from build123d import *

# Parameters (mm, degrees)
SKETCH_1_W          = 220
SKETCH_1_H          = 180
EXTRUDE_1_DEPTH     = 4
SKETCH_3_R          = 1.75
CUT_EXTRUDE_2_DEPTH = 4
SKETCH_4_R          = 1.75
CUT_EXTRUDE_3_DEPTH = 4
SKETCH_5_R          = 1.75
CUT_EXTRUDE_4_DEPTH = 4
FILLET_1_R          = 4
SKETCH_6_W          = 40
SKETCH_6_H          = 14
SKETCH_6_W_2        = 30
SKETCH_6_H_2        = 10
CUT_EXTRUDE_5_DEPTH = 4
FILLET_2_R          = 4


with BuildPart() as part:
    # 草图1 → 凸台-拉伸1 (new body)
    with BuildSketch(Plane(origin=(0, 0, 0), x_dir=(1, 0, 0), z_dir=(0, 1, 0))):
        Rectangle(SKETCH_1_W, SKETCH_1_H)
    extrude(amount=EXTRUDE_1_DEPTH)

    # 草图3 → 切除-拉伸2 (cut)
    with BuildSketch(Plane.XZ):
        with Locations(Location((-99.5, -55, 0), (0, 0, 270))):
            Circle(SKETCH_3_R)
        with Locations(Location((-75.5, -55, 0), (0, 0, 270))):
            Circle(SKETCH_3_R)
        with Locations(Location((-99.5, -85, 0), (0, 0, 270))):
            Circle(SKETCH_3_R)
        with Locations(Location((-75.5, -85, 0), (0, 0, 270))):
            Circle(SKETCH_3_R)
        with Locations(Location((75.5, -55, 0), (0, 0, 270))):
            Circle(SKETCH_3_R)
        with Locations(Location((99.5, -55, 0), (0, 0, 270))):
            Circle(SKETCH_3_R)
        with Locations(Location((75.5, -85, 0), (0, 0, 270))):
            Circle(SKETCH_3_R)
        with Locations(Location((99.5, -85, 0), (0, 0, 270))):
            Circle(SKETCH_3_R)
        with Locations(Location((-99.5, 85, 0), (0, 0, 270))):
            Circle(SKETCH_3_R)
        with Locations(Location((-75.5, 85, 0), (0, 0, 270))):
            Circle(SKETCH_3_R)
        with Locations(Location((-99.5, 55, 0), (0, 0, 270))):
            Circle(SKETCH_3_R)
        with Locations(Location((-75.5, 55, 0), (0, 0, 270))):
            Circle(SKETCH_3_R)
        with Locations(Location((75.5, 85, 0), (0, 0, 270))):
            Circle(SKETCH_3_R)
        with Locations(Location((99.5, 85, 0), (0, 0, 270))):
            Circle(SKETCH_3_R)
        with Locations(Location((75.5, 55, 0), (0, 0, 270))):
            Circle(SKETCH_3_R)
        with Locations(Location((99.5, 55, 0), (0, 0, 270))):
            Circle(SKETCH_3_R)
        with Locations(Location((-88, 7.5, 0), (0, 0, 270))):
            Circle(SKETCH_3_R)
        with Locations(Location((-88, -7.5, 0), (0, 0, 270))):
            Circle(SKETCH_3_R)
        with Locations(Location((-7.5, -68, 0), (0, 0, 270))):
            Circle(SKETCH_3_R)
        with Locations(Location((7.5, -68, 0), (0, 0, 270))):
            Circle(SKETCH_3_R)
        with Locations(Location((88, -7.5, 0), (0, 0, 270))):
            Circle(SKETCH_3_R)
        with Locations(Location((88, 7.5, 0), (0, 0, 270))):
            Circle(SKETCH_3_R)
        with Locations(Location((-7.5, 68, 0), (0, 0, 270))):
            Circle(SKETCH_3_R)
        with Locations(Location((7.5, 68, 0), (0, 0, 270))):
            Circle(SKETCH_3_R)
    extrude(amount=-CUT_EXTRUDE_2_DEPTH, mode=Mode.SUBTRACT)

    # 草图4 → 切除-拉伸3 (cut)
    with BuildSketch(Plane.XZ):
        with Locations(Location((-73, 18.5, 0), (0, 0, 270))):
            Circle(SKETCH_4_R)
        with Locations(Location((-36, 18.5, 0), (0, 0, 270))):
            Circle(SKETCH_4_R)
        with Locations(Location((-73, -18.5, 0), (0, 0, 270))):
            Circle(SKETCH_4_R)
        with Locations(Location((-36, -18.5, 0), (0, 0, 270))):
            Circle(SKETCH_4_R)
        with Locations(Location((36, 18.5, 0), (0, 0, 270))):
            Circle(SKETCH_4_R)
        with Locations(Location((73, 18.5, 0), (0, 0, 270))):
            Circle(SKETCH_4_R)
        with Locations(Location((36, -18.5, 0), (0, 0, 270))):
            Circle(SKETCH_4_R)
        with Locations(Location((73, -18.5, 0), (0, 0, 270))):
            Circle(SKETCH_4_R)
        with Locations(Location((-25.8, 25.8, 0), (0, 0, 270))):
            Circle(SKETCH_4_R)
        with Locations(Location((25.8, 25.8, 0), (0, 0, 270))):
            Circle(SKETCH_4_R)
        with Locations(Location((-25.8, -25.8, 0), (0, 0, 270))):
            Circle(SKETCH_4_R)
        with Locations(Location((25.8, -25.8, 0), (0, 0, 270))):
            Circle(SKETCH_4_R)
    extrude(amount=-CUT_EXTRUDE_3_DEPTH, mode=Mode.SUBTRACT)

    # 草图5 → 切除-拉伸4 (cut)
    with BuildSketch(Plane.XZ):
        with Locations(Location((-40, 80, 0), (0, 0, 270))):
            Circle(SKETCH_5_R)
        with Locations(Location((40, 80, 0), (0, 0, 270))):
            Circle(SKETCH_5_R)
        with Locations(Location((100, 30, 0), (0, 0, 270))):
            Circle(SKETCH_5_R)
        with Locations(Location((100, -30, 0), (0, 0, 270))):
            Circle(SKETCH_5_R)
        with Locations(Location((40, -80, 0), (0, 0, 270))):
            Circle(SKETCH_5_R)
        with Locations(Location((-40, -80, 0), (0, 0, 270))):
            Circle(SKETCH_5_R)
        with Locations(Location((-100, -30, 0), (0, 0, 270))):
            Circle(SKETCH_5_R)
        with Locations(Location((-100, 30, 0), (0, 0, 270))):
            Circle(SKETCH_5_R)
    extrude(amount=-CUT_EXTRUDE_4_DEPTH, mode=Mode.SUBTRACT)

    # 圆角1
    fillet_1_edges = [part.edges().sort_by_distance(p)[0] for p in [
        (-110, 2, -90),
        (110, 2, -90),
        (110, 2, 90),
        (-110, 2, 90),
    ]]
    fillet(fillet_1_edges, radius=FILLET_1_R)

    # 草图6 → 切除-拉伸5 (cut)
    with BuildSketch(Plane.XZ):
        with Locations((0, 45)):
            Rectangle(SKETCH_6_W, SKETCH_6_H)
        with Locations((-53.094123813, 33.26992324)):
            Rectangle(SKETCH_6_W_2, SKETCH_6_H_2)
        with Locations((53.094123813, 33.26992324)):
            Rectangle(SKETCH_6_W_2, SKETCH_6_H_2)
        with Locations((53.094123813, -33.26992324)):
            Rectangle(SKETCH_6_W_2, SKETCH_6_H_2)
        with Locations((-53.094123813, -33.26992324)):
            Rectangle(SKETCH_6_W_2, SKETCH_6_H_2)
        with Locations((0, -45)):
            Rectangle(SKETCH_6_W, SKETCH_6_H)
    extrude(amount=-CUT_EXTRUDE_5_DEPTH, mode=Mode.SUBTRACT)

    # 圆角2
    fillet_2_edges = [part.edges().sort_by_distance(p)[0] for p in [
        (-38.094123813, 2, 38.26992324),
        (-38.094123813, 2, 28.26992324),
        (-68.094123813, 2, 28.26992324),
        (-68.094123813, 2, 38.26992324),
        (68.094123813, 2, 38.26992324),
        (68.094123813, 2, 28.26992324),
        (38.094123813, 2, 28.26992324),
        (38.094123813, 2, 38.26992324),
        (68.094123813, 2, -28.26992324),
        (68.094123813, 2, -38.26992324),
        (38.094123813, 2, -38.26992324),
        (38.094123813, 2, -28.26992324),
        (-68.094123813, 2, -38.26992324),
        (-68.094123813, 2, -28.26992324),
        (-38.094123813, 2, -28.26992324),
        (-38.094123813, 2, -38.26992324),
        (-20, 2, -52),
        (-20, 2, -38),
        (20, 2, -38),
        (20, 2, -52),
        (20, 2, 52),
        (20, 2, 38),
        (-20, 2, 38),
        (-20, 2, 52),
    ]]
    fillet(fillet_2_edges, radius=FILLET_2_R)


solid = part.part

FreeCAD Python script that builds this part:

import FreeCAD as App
import Part
import Sketcher
from FreeCAD import Vector
Q = App.Units.Quantity


def edges_at(feature, points):
    """Names of the edges that pass closest to the given points."""
    edges = feature.Shape.Edges
    near = lambda p: min(range(len(edges)), key=lambda i: edges[i].distToShape(Part.Vertex(*p))[0])
    return sorted({f"Edge{near(p) + 1}" for p in points})


def add_polygon(sketch, points):
    """Adds a closed chain of lines whose ends are joined by coincident constraints."""
    first, n = sketch.GeometryCount, len(points)
    for a, b in zip(points, points[1:] + points[:1]):
        sketch.addGeometry(Part.LineSegment(App.Vector(*a, 0), App.Vector(*b, 0)), False)
    for i in range(n):
        sketch.addConstraint(Sketcher.Constraint("Coincident", first + i, 2, first + (i + 1) % n, 1))

doc = App.newDocument("Part")
body = doc.addObject("PartDesign::Body", "Body")

# Sketch on XZ plane
sketch1 = body.newObject("Sketcher::SketchObject", "Sketch")
sketch1.AttachmentSupport = (doc.getObject("XZ_Plane"), [""])
sketch1.MapMode = "FlatFace"
add_polygon(sketch1, [(-110, -90), (-110, 90), (110, 90), (110, -90)])  # lines 0-3
sketch1.addConstraint([
    Sketcher.Constraint("Vertical", 0),
    Sketcher.Constraint("Horizontal", 1),
    Sketcher.Constraint("Vertical", 2),
    Sketcher.Constraint("Horizontal", 3),
    Sketcher.Constraint("Symmetric", 0, 2, 2, 2, -1, 1),
    Sketcher.Constraint("DistanceX", 1, 1, 1, 2, Q("220 mm")),
    Sketcher.Constraint("DistanceY", 0, 1, 0, 2, Q("180 mm")),
])
pad1 = body.newObject("PartDesign::Pad", "Pad")
pad1.Profile = sketch1
pad1.Length = 4
pad1.Reversed = True

# Sketch on XZ plane
sketch2 = body.newObject("Sketcher::SketchObject", "Sketch001")
sketch2.AttachmentSupport = (doc.getObject("XZ_Plane"), [""])
sketch2.MapMode = "FlatFace"
sketch2.addGeometry([
    Part.Circle(Vector(-99.5, -55, 0), Vector(0, 0, 1), 1.8),  # 0
    Part.Circle(Vector(-75.5, -55, 0), Vector(0, 0, 1), 1.8),  # 1
    Part.Circle(Vector(-99.5, -85, 0), Vector(0, 0, 1), 1.8),  # 2
    Part.Circle(Vector(-75.5, -85, 0), Vector(0, 0, 1), 1.8),  # 3
    Part.Circle(Vector(75.5, -55, 0), Vector(0, 0, 1), 1.8),  # 4
    Part.Circle(Vector(99.5, -55, 0), Vector(0, 0, 1), 1.8),  # 5
    Part.Circle(Vector(75.5, -85, 0), Vector(0, 0, 1), 1.8),  # 6
    Part.Circle(Vector(99.5, -85, 0), Vector(0, 0, 1), 1.8),  # 7
    Part.Circle(Vector(-99.5, 85, 0), Vector(0, 0, 1), 1.8),  # 8
    Part.Circle(Vector(-75.5, 85, 0), Vector(0, 0, 1), 1.8),  # 9
    Part.Circle(Vector(-99.5, 55, 0), Vector(0, 0, 1), 1.8),  # 10
    Part.Circle(Vector(-75.5, 55, 0), Vector(0, 0, 1), 1.8),  # 11
    Part.Circle(Vector(75.5, 85, 0), Vector(0, 0, 1), 1.8),  # 12
    Part.Circle(Vector(99.5, 85, 0), Vector(0, 0, 1), 1.8),  # 13
    Part.Circle(Vector(75.5, 55, 0), Vector(0, 0, 1), 1.8),  # 14
    Part.Circle(Vector(99.5, 55, 0), Vector(0, 0, 1), 1.8),  # 15
    Part.Circle(Vector(-88, 7.5, 0), Vector(0, 0, 1), 1.8),  # 16
    Part.Circle(Vector(-88, -7.5, 0), Vector(0, 0, 1), 1.8),  # 17
    Part.Circle(Vector(-7.5, -68, 0), Vector(0, 0, 1), 1.8),  # 18
    Part.Circle(Vector(7.5, -68, 0), Vector(0, 0, 1), 1.8),  # 19
    Part.Circle(Vector(88, -7.5, 0), Vector(0, 0, 1), 1.8),  # 20
    Part.Circle(Vector(88, 7.5, 0), Vector(0, 0, 1), 1.8),  # 21
    Part.Circle(Vector(-7.5, 68, 0), Vector(0, 0, 1), 1.8),  # 22
    Part.Circle(Vector(7.5, 68, 0), Vector(0, 0, 1), 1.8),  # 23
], False)
sketch2.addConstraint([
    Sketcher.Constraint("Equal", 0, 1),
    Sketcher.Constraint("Equal", 1, 2),
    Sketcher.Constraint("Equal", 2, 3),
    Sketcher.Constraint("Equal", 3, 4),
    Sketcher.Constraint("Equal", 4, 5),
    Sketcher.Constraint("Equal", 5, 6),
    Sketcher.Constraint("Equal", 6, 7),
    Sketcher.Constraint("Equal", 7, 8),
    Sketcher.Constraint("Equal", 8, 9),
    Sketcher.Constraint("Equal", 9, 10),
    Sketcher.Constraint("Equal", 10, 11),
    Sketcher.Constraint("Equal", 11, 12),
    Sketcher.Constraint("Equal", 12, 13),
    Sketcher.Constraint("Equal", 13, 14),
    Sketcher.Constraint("Equal", 14, 15),
    Sketcher.Constraint("Equal", 15, 16),
    Sketcher.Constraint("Equal", 16, 17),
    Sketcher.Constraint("Equal", 17, 18),
    Sketcher.Constraint("Equal", 18, 19),
    Sketcher.Constraint("Equal", 19, 20),
    Sketcher.Constraint("Equal", 20, 21),
    Sketcher.Constraint("Equal", 21, 22),
    Sketcher.Constraint("Equal", 22, 23),
    Sketcher.Constraint("Symmetric", 7, 3, 8, 3, -1, 1),
    Sketcher.Constraint("Symmetric", 6, 3, 9, 3, -1, 1),
    Sketcher.Constraint("Symmetric", 5, 3, 10, 3, -1, 1),
    Sketcher.Constraint("Symmetric", 4, 3, 11, 3, -1, 1),
    Sketcher.Constraint("Symmetric", 3, 3, 12, 3, -1, 1),
    Sketcher.Constraint("Symmetric", 2, 3, 13, 3, -1, 1),
    Sketcher.Constraint("Symmetric", 1, 3, 14, 3, -1, 1),
    Sketcher.Constraint("Symmetric", 0, 3, 15, 3, -1, 1),
    Sketcher.Constraint("Symmetric", 16, 3, 20, 3, -1, 1),
    Sketcher.Constraint("Symmetric", 17, 3, 21, 3, -1, 1),
    Sketcher.Constraint("Symmetric", 19, 3, 22, 3, -1, 1),
    Sketcher.Constraint("Symmetric", 18, 3, 23, 3, -1, 1),
    Sketcher.Constraint("Symmetric", 1, 3, 4, 3, -2),
    Sketcher.Constraint("Symmetric", 0, 3, 5, 3, -2),
    Sketcher.Constraint("Symmetric", 3, 3, 6, 3, -2),
    Sketcher.Constraint("Symmetric", 2, 3, 7, 3, -2),
    Sketcher.Constraint("Symmetric", 18, 3, 19, 3, -2),
    Sketcher.Constraint("Symmetric", 17, 3, 20, 3, -2),
    Sketcher.Constraint("Horizontal", 0, 3, 1, 3),
    Sketcher.Constraint("Horizontal", 2, 3, 3, 3),
    Sketcher.Constraint("Vertical", 0, 3, 2, 3),
    Sketcher.Constraint("Vertical", 1, 3, 3, 3),
    Sketcher.Constraint("Diameter", 0, Q("3.5 mm")),
    Sketcher.Constraint("DistanceY", 0, 3, -1, 1, Q("55 mm")),
    Sketcher.Constraint("DistanceY", 2, 3, -1, 1, Q("85 mm")),
    Sketcher.Constraint("DistanceX", 16, 3, -1, 1, Q("88 mm")),
    Sketcher.Constraint("DistanceY", 18, 3, -1, 1, Q("68 mm")),
    Sketcher.Constraint("DistanceX", 0, 3, 1, 3, Q("24 mm")),
    Sketcher.Constraint("DistanceX", 1, 3, 4, 3, Q("151 mm")),
    Sketcher.Constraint("DistanceY", 17, 3, 16, 3, Q("15 mm")),
    Sketcher.Constraint("DistanceX", 1, 3, 18, 3, Q("68 mm")),
])
pocket1 = body.newObject("PartDesign::Pocket", "Pocket")
pocket1.Profile = sketch2
pocket1.Length = 4

# Sketch on XZ plane
sketch3 = body.newObject("Sketcher::SketchObject", "Sketch002")
sketch3.AttachmentSupport = (doc.getObject("XZ_Plane"), [""])
sketch3.MapMode = "FlatFace"
sketch3.addGeometry([
    Part.Circle(Vector(-73, 18.5, 0), Vector(0, 0, 1), 1.8),  # 0
    Part.Circle(Vector(-36, 18.5, 0), Vector(0, 0, 1), 1.8),  # 1
    Part.Circle(Vector(-73, -18.5, 0), Vector(0, 0, 1), 1.8),  # 2
    Part.Circle(Vector(-36, -18.5, 0), Vector(0, 0, 1), 1.8),  # 3
    Part.Circle(Vector(36, 18.5, 0), Vector(0, 0, 1), 1.8),  # 4
    Part.Circle(Vector(73, 18.5, 0), Vector(0, 0, 1), 1.8),  # 5
    Part.Circle(Vector(36, -18.5, 0), Vector(0, 0, 1), 1.8),  # 6
    Part.Circle(Vector(73, -18.5, 0), Vector(0, 0, 1), 1.8),  # 7
    Part.Circle(Vector(-25.8, 25.8, 0), Vector(0, 0, 1), 1.8),  # 8
    Part.Circle(Vector(25.8, 25.8, 0), Vector(0, 0, 1), 1.8),  # 9
    Part.Circle(Vector(-25.8, -25.8, 0), Vector(0, 0, 1), 1.8),  # 10
    Part.Circle(Vector(25.8, -25.8, 0), Vector(0, 0, 1), 1.8),  # 11
], False)
sketch3.addConstraint([
    Sketcher.Constraint("Equal", 0, 1),
    Sketcher.Constraint("Equal", 1, 2),
    Sketcher.Constraint("Equal", 2, 3),
    Sketcher.Constraint("Equal", 3, 4),
    Sketcher.Constraint("Equal", 4, 5),
    Sketcher.Constraint("Equal", 5, 6),
    Sketcher.Constraint("Equal", 6, 7),
    Sketcher.Constraint("Equal", 7, 8),
    Sketcher.Constraint("Equal", 8, 9),
    Sketcher.Constraint("Equal", 9, 10),
    Sketcher.Constraint("Equal", 10, 11),
    Sketcher.Constraint("Symmetric", 3, 3, 4, 3, -1, 1),
    Sketcher.Constraint("Symmetric", 2, 3, 5, 3, -1, 1),
    Sketcher.Constraint("Symmetric", 1, 3, 6, 3, -1, 1),
    Sketcher.Constraint("Symmetric", 0, 3, 7, 3, -1, 1),
    Sketcher.Constraint("Symmetric", 9, 3, 10, 3, -1, 1),
    Sketcher.Constraint("Symmetric", 8, 3, 11, 3, -1, 1),
    Sketcher.Constraint("Symmetric", 1, 3, 4, 3, -2),
    Sketcher.Constraint("Symmetric", 0, 3, 5, 3, -2),
    Sketcher.Constraint("Symmetric", 8, 3, 9, 3, -2),
    Sketcher.Constraint("Horizontal", 0, 3, 1, 3),
    Sketcher.Constraint("Diameter", 0, Q("3.5 mm")),
    Sketcher.Constraint("DistanceX", 0, 3, -1, 1, Q("73 mm")),
    Sketcher.Constraint("DistanceX", 1, 3, -1, 1, Q("36 mm")),
    Sketcher.Constraint("DistanceY", 2, 3, 0, 3, Q("37 mm")),
    Sketcher.Constraint("DistanceX", 8, 3, -1, 1, Q("25.8 mm")),
    Sketcher.Constraint("DistanceY", -1, 1, 8, 3, Q("25.8 mm")),
])
pocket2 = body.newObject("PartDesign::Pocket", "Pocket001")
pocket2.Profile = sketch3
pocket2.Length = 4

# Sketch on XZ plane
sketch4 = body.newObject("Sketcher::SketchObject", "Sketch003")
sketch4.AttachmentSupport = (doc.getObject("XZ_Plane"), [""])
sketch4.MapMode = "FlatFace"
sketch4.addGeometry([
    Part.Circle(Vector(-40, 80, 0), Vector(0, 0, 1), 1.8),  # 0
    Part.Circle(Vector(40, 80, 0), Vector(0, 0, 1), 1.8),  # 1
    Part.Circle(Vector(100, 30, 0), Vector(0, 0, 1), 1.8),  # 2
    Part.Circle(Vector(100, -30, 0), Vector(0, 0, 1), 1.8),  # 3
    Part.Circle(Vector(40, -80, 0), Vector(0, 0, 1), 1.8),  # 4
    Part.Circle(Vector(-40, -80, 0), Vector(0, 0, 1), 1.8),  # 5
    Part.Circle(Vector(-100, -30, 0), Vector(0, 0, 1), 1.8),  # 6
    Part.Circle(Vector(-100, 30, 0), Vector(0, 0, 1), 1.8),  # 7
], False)
sketch4.addConstraint([
    Sketcher.Constraint("Equal", 0, 1),
    Sketcher.Constraint("Equal", 1, 2),
    Sketcher.Constraint("Equal", 2, 3),
    Sketcher.Constraint("Equal", 3, 4),
    Sketcher.Constraint("Equal", 4, 5),
    Sketcher.Constraint("Equal", 5, 6),
    Sketcher.Constraint("Equal", 6, 7),
    Sketcher.Constraint("Symmetric", 0, 3, 4, 3, -1, 1),
    Sketcher.Constraint("Symmetric", 1, 3, 5, 3, -1, 1),
    Sketcher.Constraint("Symmetric", 2, 3, 6, 3, -1, 1),
    Sketcher.Constraint("Symmetric", 3, 3, 7, 3, -1, 1),
    Sketcher.Constraint("Symmetric", 0, 3, 1, 3, -2),
    Sketcher.Constraint("Symmetric", 3, 3, 6, 3, -2),
    Sketcher.Constraint("Diameter", 0, Q("3.5 mm")),
    Sketcher.Constraint("DistanceX", 0, 3, -1, 1, Q("40 mm")),
    Sketcher.Constraint("DistanceY", -1, 1, 0, 3, Q("80 mm")),
    Sketcher.Constraint("DistanceX", -1, 1, 2, 3, Q("100 mm")),
    Sketcher.Constraint("DistanceY", -1, 1, 2, 3, Q("30 mm")),
])
pocket3 = body.newObject("PartDesign::Pocket", "Pocket002")
pocket3.Profile = sketch4
pocket3.Length = 4
doc.recompute()

fillet = body.newObject("PartDesign::Fillet", "Fillet")
fillet.Base = (pocket3, edges_at(pocket3, [
    (-110, 2, -90),
    (110, 2, -90),
    (110, 2, 90),
    (-110, 2, 90),
]))
fillet.Radius = 4

# Sketch on XZ plane
sketch5 = body.newObject("Sketcher::SketchObject", "Sketch004")
sketch5.AttachmentSupport = (doc.getObject("XZ_Plane"), [""])
sketch5.MapMode = "FlatFace"
add_polygon(sketch5, [(-20, 52), (-20, 38), (20, 38), (20, 52)])  # lines 0-3
add_polygon(sketch5, [(-68, 38), (-68, 28), (-38, 28), (-38, 38)])  # lines 4-7
add_polygon(sketch5, [(38, 38), (38, 28), (68, 28), (68, 38)])  # lines 8-11
add_polygon(sketch5, [(38, -28), (38, -38), (68, -38), (68, -28)])  # lines 12-15
add_polygon(sketch5, [(-68, -28), (-68, -38), (-38, -38), (-38, -28)])  # lines 16-19
add_polygon(sketch5, [(-20, -38), (-20, -52), (20, -52), (20, -38)])  # lines 20-23
sketch5.addConstraint([
    Sketcher.Constraint("Vertical", 0),
    Sketcher.Constraint("Horizontal", 1),
    Sketcher.Constraint("Vertical", 2),
    Sketcher.Constraint("Horizontal", 3),
    Sketcher.Constraint("Vertical", 4),
    Sketcher.Constraint("Horizontal", 5),
    Sketcher.Constraint("Vertical", 6),
    Sketcher.Constraint("Horizontal", 7),
    Sketcher.Constraint("Vertical", 8),
    Sketcher.Constraint("Horizontal", 9),
    Sketcher.Constraint("Vertical", 10),
    Sketcher.Constraint("Horizontal", 11),
    Sketcher.Constraint("Vertical", 12),
    Sketcher.Constraint("Horizontal", 13),
    Sketcher.Constraint("Vertical", 14),
    Sketcher.Constraint("Horizontal", 15),
    Sketcher.Constraint("Vertical", 16),
    Sketcher.Constraint("Horizontal", 17),
    Sketcher.Constraint("Vertical", 18),
    Sketcher.Constraint("Horizontal", 19),
    Sketcher.Constraint("Vertical", 20),
    Sketcher.Constraint("Horizontal", 21),
    Sketcher.Constraint("Vertical", 22),
    Sketcher.Constraint("Horizontal", 23),
    Sketcher.Constraint("Symmetric", 6, 2, 12, 2, -1, 1),
    Sketcher.Constraint("Symmetric", 4, 2, 14, 2, -1, 1),
    Sketcher.Constraint("Symmetric", 10, 2, 16, 2, -1, 1),
    Sketcher.Constraint("Symmetric", 8, 2, 18, 2, -1, 1),
    Sketcher.Constraint("Symmetric", 2, 2, 20, 2, -1, 1),
    Sketcher.Constraint("Symmetric", 0, 2, 22, 2, -1, 1),
    Sketcher.Constraint("Symmetric", 5, 2, 8, 2, -2),
    Sketcher.Constraint("Symmetric", 7, 2, 10, 2, -2),
    Sketcher.Constraint("Vertical", 3, 2, 20, 2),
    Sketcher.Constraint("DistanceX", 1, 1, 1, 2, Q("40 mm")),
    Sketcher.Constraint("DistanceX", 5, 1, 5, 2, Q("30 mm")),
    Sketcher.Constraint("DistanceY", 0, 2, 0, 1, Q("14 mm")),
    Sketcher.Constraint("DistanceY", 4, 2, 4, 1, Q("10 mm")),
    Sketcher.Constraint("DistanceY", -1, 1, 0, 2, Q("38 mm")),
    Sketcher.Constraint("DistanceX", 4, 2, -1, 1, Q("68.094124 mm")),
    Sketcher.Constraint("DistanceY", -1, 1, 4, 2, Q("28.269923 mm")),
])
pocket4 = body.newObject("PartDesign::Pocket", "Pocket003")
pocket4.Profile = sketch5
pocket4.Length = 4
doc.recompute()

fillet2 = body.newObject("PartDesign::Fillet", "Fillet001")
fillet2.Base = (pocket4, edges_at(pocket4, [
    (-38.094, 2, 38.27),
    (-38.094, 2, 28.27),
    (-68.094, 2, 28.27),
    (-68.094, 2, 38.27),
    (68.094, 2, 38.27),
    (68.094, 2, 28.27),
    (38.094, 2, 28.27),
    (38.094, 2, 38.27),
    (68.094, 2, -28.27),
    (68.094, 2, -38.27),
    (38.094, 2, -38.27),
    (38.094, 2, -28.27),
    (-68.094, 2, -38.27),
    (-68.094, 2, -28.27),
    (-38.094, 2, -28.27),
    (-38.094, 2, -38.27),
    (-20, 2, -52),
    (-20, 2, -38),
    (20, 2, -38),
    (20, 2, -52),
    (20, 2, 52),
    (20, 2, 38),
    (-20, 2, 38),
    (-20, 2, 52),
]))
fillet2.Radius = 4

doc.recompute()
